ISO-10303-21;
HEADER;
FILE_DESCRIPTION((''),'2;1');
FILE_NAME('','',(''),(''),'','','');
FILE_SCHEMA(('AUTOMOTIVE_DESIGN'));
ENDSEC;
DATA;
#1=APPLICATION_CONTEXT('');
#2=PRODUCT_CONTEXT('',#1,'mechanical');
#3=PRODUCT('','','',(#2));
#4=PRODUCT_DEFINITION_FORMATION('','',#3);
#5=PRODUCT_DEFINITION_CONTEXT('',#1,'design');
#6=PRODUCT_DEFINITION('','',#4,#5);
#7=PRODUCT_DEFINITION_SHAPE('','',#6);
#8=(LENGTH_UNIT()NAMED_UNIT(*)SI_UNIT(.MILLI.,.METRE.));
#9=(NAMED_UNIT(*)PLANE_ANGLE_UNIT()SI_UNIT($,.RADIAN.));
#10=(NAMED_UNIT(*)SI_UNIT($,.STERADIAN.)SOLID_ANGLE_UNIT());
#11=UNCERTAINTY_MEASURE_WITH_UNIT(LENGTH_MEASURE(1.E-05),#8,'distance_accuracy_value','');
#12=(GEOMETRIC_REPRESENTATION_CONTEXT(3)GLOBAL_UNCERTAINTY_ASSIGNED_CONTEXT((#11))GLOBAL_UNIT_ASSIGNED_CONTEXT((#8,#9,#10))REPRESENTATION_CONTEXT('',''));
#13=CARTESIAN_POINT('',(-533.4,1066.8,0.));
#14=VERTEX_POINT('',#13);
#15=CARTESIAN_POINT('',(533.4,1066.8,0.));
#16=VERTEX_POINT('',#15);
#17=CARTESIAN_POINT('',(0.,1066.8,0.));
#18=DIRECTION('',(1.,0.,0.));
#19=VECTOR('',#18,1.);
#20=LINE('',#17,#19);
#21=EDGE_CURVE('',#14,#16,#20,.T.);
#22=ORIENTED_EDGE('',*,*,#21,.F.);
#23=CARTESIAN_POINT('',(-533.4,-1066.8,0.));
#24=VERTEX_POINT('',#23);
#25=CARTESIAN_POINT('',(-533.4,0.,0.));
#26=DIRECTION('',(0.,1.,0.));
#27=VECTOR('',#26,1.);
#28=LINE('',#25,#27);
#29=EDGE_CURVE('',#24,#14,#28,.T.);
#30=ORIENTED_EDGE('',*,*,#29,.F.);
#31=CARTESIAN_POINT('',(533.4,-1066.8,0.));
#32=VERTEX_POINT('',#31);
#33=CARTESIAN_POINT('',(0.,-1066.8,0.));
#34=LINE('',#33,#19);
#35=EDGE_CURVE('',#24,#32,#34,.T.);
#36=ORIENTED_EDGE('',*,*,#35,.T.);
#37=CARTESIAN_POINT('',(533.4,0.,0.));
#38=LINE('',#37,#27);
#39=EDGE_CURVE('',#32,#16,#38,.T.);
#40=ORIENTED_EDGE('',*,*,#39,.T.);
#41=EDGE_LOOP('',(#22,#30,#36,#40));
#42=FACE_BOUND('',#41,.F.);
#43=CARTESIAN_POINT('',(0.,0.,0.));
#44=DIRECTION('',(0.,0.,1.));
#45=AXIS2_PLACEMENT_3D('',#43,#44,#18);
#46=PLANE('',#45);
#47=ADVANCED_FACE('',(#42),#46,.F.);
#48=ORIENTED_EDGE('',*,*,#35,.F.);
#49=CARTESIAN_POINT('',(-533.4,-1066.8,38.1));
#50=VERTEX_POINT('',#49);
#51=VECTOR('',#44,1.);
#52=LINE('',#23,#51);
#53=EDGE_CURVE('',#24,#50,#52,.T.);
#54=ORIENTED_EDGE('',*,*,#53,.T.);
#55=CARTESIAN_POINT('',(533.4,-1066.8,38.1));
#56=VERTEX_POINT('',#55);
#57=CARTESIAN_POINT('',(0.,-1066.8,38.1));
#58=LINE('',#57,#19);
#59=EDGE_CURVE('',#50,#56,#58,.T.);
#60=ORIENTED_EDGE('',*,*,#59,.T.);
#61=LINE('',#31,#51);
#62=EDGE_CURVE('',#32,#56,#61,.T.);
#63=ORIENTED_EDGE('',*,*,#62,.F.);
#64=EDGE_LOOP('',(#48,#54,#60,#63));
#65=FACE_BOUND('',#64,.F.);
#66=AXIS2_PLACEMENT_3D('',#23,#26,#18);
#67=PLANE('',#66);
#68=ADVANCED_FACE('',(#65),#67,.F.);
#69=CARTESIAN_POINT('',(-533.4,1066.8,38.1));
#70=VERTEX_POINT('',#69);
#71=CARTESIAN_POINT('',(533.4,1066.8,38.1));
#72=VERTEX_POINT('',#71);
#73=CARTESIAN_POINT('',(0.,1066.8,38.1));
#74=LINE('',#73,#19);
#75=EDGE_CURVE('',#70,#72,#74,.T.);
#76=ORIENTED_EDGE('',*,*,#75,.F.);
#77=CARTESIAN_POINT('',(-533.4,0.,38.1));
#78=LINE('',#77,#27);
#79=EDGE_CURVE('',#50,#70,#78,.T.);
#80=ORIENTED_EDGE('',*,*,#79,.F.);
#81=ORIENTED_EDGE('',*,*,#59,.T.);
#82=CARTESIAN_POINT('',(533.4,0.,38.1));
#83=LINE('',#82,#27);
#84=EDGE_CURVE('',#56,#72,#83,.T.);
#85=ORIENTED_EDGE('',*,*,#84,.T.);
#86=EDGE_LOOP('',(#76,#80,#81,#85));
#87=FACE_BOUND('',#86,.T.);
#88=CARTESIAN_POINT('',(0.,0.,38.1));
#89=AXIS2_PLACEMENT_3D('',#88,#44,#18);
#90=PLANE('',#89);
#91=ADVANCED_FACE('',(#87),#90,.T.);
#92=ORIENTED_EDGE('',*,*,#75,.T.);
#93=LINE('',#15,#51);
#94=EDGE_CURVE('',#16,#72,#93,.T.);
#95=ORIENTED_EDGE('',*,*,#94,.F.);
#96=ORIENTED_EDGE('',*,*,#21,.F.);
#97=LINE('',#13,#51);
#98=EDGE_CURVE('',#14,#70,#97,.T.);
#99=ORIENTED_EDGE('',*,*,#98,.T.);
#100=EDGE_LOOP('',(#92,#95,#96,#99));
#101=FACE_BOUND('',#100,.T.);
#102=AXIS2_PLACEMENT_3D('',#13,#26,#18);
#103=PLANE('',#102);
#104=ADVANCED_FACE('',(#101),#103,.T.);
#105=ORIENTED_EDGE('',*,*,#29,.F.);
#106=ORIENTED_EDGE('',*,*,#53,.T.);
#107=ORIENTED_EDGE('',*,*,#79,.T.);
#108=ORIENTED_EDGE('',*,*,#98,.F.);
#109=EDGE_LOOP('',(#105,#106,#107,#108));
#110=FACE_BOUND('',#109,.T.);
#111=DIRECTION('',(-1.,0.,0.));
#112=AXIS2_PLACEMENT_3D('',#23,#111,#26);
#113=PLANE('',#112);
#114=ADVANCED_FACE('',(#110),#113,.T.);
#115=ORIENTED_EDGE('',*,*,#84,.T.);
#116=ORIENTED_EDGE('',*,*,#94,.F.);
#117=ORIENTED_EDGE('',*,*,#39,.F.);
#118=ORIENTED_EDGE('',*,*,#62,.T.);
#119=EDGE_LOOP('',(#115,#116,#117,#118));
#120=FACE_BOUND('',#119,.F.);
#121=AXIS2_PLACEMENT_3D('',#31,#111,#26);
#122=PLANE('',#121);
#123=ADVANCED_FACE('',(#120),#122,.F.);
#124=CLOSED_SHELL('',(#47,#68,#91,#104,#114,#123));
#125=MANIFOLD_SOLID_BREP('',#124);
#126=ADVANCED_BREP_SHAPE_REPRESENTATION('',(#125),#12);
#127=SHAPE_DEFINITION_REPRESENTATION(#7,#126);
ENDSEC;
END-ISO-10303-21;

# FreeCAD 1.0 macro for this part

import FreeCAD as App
import Part
import Sketcher
Q = App.Units.Quantity


def add_polygon(sketch, points):
    """Adds a closed chain of lines whose ends are joined by coincident constraints."""
    first, n = sketch.GeometryCount, len(points)
    for a, b in zip(points, points[1:] + points[:1]):
        sketch.addGeometry(Part.LineSegment(App.Vector(*a, 0), App.Vector(*b, 0)), False)
    for i in range(n):
        sketch.addConstraint(Sketcher.Constraint("Coincident", first + i, 2, first + (i + 1) % n, 1))

doc = App.newDocument("Part")
body = doc.addObject("PartDesign::Body", "Body")

sketch1 = body.newObject("Sketcher::SketchObject", "Sketch")
sketch1.AttachmentSupport = (doc.getObject("XY_Plane"), [""])
sketch1.MapMode = "FlatFace"
add_polygon(sketch1, [(-533.4, 1066.8), (-533.4, -1066.8), (533.4, -1066.8), (533.4, 1066.8)])
sketch1.addConstraint(Sketcher.Constraint("Vertical", 0))
sketch1.addConstraint(Sketcher.Constraint("Horizontal", 1))
sketch1.addConstraint(Sketcher.Constraint("Vertical", 2))
sketch1.addConstraint(Sketcher.Constraint("Horizontal", 3))
sketch1.addConstraint(Sketcher.Constraint("Symmetric", 0, 2, 2, 2, -1, 1))
sketch1.addConstraint(Sketcher.Constraint("DistanceX", 1, 1, 1, 2, Q("42 in")))
sketch1.addConstraint(Sketcher.Constraint("DistanceY", 0, 2, 0, 1, Q("84 in")))
pad1 = body.newObject("PartDesign::Pad", "Pad")
pad1.Profile = sketch1
pad1.Length = Q("1.5 in")
body2 = doc.addObject("PartDesign::Body", "Body001")

sketch2 = body2.newObject("Sketcher::SketchObject", "Sketch001")
sketch2.AttachmentSupport = (doc.getObject("XY_Plane001"), [""])
sketch2.MapMode = "FlatFace"
add_polygon(sketch2, [(-533.4, 1066.8), (-533.4, -1066.8), (533.4, -1066.8), (533.4, 1066.8)])
sketch2.addConstraint(Sketcher.Constraint("Vertical", 0))
sketch2.addConstraint(Sketcher.Constraint("Horizontal", 1))
sketch2.addConstraint(Sketcher.Constraint("Vertical", 2))
sketch2.addConstraint(Sketcher.Constraint("Horizontal", 3))
sketch2.addConstraint(Sketcher.Constraint("Symmetric", 0, 2, 2, 2, -1, 1))
sketch2.addConstraint(Sketcher.Constraint("DistanceX", 1, 1, 1, 2, Q("42 in")))
sketch2.addConstraint(Sketcher.Constraint("DistanceY", 0, 2, 0, 1, Q("84 in")))
pad2 = body2.newObject("PartDesign::Pad", "Pad001")
pad2.Profile = sketch2
pad2.Length = Q("1.5 in")
body.Visibility = False

doc.recompute()
